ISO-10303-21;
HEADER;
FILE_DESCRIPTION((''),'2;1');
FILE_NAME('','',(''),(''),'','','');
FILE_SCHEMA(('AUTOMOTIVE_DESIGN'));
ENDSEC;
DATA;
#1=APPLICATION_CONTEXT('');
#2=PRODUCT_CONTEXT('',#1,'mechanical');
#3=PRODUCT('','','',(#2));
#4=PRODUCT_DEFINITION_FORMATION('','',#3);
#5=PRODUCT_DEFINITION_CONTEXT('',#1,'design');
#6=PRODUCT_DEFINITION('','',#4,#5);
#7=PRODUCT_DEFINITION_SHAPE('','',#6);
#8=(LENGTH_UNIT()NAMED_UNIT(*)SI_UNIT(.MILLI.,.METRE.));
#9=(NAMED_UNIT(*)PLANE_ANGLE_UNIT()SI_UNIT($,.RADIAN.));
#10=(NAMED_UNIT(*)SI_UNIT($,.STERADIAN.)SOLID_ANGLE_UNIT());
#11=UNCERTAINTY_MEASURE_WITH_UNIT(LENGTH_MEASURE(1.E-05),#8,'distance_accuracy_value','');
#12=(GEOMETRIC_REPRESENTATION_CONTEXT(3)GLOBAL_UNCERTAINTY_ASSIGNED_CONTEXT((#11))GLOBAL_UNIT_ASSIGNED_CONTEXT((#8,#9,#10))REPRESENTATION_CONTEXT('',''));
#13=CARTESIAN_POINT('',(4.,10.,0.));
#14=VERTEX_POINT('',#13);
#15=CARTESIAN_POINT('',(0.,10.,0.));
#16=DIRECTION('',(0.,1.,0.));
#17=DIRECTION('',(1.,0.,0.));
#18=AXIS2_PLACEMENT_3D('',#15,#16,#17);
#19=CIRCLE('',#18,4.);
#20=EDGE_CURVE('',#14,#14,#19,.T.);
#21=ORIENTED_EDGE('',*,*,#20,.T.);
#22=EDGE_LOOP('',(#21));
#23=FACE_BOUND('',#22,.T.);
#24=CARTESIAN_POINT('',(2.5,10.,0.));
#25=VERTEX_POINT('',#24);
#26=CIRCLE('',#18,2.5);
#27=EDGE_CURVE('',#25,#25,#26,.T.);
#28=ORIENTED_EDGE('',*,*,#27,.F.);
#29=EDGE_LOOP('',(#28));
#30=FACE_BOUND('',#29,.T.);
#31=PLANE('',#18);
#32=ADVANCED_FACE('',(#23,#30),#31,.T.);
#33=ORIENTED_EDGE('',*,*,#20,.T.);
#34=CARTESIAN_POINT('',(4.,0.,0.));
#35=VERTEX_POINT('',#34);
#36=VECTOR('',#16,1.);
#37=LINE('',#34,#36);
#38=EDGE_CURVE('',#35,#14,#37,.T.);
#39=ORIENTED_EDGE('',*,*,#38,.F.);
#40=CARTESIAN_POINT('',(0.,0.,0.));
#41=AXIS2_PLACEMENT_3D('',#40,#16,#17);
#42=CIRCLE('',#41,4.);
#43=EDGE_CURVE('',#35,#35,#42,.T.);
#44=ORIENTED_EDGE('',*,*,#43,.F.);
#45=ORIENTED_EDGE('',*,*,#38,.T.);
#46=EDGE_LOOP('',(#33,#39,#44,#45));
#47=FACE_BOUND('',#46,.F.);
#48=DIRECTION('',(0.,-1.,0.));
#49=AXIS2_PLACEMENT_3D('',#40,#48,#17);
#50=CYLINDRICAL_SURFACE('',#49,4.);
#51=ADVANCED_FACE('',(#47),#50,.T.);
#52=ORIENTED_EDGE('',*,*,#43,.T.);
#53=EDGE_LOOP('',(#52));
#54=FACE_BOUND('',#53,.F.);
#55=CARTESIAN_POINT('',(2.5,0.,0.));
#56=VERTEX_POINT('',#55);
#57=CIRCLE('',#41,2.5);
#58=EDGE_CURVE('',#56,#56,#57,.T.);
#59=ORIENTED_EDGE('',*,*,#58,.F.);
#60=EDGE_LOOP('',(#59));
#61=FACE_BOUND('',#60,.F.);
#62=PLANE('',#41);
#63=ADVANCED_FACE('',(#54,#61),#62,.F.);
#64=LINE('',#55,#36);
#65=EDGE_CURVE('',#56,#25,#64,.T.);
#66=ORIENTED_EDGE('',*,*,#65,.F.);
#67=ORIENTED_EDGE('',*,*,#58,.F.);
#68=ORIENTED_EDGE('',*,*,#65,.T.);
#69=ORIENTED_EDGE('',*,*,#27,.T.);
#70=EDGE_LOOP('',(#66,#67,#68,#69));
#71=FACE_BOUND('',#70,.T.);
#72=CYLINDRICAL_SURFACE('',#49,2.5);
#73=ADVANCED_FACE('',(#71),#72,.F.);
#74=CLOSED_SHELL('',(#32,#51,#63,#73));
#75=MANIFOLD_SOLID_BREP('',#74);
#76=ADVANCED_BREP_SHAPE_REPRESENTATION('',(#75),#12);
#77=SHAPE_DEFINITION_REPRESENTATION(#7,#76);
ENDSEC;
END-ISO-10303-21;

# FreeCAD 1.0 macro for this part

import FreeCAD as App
import Part
import Sketcher

V = App.Vector
Q = App.Units.Quantity

doc = App.newDocument("Part")
body = doc.addObject("PartDesign::Body", "Body")

# Sketch on XZ plane
sketch1 = body.newObject("Sketcher::SketchObject", "Sketch")
sketch1.AttachmentSupport = (doc.getObject("XZ_Plane"), [""])
sketch1.MapMode = "FlatFace"
sketch1.addGeometry(Part.Circle(V(0, 0, 0), V(0, 0, 1), 4), False)
sketch1.addGeometry(Part.Circle(V(0, 0, 0), V(0, 0, 1), 2.5), False)
sketch1.addConstraint(Sketcher.Constraint("Coincident", 0, 3, -1, 1))
sketch1.addConstraint(Sketcher.Constraint("Coincident", 1, 3, -1, 1))
sketch1.addConstraint(Sketcher.Constraint("Diameter", 0, Q("8 mm")))
sketch1.addConstraint(Sketcher.Constraint("Diameter", 1, Q("5 mm")))
pad1 = body.newObject("PartDesign::Pad", "Pad")
pad1.Profile = sketch1
pad1.Length = 10
pad1.Reversed = True

doc.recompute()
